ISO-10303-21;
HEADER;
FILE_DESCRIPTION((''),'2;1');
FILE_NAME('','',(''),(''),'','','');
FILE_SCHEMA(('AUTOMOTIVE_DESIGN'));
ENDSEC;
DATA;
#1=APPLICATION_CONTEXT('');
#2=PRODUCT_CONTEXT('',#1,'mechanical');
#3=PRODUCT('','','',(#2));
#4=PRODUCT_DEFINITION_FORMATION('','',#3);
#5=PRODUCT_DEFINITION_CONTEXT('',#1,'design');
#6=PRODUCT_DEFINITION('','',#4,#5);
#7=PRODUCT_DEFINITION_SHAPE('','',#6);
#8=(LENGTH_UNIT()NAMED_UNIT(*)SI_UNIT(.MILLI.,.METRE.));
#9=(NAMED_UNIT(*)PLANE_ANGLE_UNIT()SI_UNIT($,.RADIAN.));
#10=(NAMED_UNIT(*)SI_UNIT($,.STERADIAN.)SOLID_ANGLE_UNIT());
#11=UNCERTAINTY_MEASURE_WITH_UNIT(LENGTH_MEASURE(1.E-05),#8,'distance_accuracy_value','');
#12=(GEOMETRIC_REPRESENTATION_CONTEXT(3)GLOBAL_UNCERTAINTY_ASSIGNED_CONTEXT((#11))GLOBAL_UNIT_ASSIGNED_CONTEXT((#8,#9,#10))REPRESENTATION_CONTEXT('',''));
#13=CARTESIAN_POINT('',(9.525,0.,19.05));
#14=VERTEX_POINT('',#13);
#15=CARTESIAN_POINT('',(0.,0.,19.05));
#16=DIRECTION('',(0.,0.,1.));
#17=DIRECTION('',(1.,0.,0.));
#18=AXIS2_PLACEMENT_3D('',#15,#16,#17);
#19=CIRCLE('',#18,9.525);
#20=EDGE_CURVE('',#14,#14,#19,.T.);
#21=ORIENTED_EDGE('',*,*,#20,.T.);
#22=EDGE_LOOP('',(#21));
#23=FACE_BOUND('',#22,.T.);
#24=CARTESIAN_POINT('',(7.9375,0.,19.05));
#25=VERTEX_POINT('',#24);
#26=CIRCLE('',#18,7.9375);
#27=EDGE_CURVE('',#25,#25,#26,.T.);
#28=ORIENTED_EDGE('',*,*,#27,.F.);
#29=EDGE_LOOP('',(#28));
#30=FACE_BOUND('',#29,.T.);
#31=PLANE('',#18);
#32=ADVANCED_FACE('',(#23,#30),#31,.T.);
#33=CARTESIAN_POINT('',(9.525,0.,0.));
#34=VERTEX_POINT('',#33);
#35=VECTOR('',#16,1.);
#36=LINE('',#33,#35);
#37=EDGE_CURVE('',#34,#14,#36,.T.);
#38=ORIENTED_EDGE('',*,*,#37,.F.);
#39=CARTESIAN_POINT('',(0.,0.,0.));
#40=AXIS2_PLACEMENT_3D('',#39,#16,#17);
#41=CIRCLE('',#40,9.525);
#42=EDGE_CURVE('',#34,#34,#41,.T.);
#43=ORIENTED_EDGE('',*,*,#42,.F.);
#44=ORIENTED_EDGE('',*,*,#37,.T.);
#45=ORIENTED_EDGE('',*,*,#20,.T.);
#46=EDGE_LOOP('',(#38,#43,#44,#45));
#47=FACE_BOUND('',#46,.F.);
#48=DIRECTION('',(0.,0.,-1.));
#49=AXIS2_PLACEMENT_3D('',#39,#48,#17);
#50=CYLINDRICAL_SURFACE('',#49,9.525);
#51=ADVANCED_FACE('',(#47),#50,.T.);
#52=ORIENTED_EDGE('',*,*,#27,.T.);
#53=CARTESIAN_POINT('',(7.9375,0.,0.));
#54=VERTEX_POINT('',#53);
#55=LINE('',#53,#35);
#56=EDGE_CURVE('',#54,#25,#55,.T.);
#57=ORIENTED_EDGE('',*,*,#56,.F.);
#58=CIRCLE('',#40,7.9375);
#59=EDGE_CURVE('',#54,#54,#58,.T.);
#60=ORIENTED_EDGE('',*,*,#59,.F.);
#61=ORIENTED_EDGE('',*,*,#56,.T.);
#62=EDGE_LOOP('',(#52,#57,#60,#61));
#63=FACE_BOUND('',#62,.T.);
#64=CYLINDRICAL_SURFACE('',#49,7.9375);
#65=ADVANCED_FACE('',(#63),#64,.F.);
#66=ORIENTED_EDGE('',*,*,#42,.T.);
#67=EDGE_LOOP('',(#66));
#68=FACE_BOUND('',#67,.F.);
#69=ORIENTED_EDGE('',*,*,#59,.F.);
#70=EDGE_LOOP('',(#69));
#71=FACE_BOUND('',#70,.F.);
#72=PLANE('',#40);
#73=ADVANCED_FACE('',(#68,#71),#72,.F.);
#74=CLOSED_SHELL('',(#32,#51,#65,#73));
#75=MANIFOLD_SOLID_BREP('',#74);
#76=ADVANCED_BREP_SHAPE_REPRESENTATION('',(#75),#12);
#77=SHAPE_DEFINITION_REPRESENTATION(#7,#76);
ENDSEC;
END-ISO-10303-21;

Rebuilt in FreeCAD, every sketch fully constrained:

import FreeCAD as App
import Part
import Sketcher
Q = App.Units.Quantity

doc = App.newDocument("Part")
params = doc.addObject("Spreadsheet::Sheet", "Params")
for row, (alias, value) in enumerate([
    ("sketch1_diameter", "0.75 in"),
    ("sketch1_diameter2", "0.625 in"),
    ("pad1_length", "0.75 in"),
], start=1):
    params.set(f"A{row}", alias)
    params.set(f"B{row}", "=" + value)
    params.setAlias(f"B{row}", alias)

body = doc.addObject("PartDesign::Body", "Body")

# Sketch on XY plane
sketch1 = doc.addObject("Sketcher::SketchObject", "Sketch")
body.addObject(sketch1)
sketch1.AttachmentSupport = (doc.XY_Plane, [""])
sketch1.MapMode = "FlatFace"
sketch1.addGeometry(Part.Circle(App.Vector(0, 0, 0), App.Vector(0, 0, 1), 10), False)
sketch1.addGeometry(Part.Circle(App.Vector(0, 0, 0), App.Vector(0, 0, 1), 8), False)
sketch1.addConstraint(Sketcher.Constraint("Coincident", 0, 3, -1, 1))
sketch1.addConstraint(Sketcher.Constraint("Coincident", 1, 3, -1, 1))
sketch1.addConstraint(Sketcher.Constraint("Diameter", 0, Q("0.75 in")))
sketch1.addConstraint(Sketcher.Constraint("Diameter", 1, Q("0.625 in")))
sketch1.setExpression("Constraints[2]", "Params.sketch1_diameter")
sketch1.setExpression("Constraints[3]", "Params.sketch1_diameter2")
pad1 = doc.addObject("PartDesign::Pad", "Pad")
body.addObject(pad1)
pad1.Profile = sketch1
pad1.setExpression("Length", "Params.pad1_length")

doc.recompute()
